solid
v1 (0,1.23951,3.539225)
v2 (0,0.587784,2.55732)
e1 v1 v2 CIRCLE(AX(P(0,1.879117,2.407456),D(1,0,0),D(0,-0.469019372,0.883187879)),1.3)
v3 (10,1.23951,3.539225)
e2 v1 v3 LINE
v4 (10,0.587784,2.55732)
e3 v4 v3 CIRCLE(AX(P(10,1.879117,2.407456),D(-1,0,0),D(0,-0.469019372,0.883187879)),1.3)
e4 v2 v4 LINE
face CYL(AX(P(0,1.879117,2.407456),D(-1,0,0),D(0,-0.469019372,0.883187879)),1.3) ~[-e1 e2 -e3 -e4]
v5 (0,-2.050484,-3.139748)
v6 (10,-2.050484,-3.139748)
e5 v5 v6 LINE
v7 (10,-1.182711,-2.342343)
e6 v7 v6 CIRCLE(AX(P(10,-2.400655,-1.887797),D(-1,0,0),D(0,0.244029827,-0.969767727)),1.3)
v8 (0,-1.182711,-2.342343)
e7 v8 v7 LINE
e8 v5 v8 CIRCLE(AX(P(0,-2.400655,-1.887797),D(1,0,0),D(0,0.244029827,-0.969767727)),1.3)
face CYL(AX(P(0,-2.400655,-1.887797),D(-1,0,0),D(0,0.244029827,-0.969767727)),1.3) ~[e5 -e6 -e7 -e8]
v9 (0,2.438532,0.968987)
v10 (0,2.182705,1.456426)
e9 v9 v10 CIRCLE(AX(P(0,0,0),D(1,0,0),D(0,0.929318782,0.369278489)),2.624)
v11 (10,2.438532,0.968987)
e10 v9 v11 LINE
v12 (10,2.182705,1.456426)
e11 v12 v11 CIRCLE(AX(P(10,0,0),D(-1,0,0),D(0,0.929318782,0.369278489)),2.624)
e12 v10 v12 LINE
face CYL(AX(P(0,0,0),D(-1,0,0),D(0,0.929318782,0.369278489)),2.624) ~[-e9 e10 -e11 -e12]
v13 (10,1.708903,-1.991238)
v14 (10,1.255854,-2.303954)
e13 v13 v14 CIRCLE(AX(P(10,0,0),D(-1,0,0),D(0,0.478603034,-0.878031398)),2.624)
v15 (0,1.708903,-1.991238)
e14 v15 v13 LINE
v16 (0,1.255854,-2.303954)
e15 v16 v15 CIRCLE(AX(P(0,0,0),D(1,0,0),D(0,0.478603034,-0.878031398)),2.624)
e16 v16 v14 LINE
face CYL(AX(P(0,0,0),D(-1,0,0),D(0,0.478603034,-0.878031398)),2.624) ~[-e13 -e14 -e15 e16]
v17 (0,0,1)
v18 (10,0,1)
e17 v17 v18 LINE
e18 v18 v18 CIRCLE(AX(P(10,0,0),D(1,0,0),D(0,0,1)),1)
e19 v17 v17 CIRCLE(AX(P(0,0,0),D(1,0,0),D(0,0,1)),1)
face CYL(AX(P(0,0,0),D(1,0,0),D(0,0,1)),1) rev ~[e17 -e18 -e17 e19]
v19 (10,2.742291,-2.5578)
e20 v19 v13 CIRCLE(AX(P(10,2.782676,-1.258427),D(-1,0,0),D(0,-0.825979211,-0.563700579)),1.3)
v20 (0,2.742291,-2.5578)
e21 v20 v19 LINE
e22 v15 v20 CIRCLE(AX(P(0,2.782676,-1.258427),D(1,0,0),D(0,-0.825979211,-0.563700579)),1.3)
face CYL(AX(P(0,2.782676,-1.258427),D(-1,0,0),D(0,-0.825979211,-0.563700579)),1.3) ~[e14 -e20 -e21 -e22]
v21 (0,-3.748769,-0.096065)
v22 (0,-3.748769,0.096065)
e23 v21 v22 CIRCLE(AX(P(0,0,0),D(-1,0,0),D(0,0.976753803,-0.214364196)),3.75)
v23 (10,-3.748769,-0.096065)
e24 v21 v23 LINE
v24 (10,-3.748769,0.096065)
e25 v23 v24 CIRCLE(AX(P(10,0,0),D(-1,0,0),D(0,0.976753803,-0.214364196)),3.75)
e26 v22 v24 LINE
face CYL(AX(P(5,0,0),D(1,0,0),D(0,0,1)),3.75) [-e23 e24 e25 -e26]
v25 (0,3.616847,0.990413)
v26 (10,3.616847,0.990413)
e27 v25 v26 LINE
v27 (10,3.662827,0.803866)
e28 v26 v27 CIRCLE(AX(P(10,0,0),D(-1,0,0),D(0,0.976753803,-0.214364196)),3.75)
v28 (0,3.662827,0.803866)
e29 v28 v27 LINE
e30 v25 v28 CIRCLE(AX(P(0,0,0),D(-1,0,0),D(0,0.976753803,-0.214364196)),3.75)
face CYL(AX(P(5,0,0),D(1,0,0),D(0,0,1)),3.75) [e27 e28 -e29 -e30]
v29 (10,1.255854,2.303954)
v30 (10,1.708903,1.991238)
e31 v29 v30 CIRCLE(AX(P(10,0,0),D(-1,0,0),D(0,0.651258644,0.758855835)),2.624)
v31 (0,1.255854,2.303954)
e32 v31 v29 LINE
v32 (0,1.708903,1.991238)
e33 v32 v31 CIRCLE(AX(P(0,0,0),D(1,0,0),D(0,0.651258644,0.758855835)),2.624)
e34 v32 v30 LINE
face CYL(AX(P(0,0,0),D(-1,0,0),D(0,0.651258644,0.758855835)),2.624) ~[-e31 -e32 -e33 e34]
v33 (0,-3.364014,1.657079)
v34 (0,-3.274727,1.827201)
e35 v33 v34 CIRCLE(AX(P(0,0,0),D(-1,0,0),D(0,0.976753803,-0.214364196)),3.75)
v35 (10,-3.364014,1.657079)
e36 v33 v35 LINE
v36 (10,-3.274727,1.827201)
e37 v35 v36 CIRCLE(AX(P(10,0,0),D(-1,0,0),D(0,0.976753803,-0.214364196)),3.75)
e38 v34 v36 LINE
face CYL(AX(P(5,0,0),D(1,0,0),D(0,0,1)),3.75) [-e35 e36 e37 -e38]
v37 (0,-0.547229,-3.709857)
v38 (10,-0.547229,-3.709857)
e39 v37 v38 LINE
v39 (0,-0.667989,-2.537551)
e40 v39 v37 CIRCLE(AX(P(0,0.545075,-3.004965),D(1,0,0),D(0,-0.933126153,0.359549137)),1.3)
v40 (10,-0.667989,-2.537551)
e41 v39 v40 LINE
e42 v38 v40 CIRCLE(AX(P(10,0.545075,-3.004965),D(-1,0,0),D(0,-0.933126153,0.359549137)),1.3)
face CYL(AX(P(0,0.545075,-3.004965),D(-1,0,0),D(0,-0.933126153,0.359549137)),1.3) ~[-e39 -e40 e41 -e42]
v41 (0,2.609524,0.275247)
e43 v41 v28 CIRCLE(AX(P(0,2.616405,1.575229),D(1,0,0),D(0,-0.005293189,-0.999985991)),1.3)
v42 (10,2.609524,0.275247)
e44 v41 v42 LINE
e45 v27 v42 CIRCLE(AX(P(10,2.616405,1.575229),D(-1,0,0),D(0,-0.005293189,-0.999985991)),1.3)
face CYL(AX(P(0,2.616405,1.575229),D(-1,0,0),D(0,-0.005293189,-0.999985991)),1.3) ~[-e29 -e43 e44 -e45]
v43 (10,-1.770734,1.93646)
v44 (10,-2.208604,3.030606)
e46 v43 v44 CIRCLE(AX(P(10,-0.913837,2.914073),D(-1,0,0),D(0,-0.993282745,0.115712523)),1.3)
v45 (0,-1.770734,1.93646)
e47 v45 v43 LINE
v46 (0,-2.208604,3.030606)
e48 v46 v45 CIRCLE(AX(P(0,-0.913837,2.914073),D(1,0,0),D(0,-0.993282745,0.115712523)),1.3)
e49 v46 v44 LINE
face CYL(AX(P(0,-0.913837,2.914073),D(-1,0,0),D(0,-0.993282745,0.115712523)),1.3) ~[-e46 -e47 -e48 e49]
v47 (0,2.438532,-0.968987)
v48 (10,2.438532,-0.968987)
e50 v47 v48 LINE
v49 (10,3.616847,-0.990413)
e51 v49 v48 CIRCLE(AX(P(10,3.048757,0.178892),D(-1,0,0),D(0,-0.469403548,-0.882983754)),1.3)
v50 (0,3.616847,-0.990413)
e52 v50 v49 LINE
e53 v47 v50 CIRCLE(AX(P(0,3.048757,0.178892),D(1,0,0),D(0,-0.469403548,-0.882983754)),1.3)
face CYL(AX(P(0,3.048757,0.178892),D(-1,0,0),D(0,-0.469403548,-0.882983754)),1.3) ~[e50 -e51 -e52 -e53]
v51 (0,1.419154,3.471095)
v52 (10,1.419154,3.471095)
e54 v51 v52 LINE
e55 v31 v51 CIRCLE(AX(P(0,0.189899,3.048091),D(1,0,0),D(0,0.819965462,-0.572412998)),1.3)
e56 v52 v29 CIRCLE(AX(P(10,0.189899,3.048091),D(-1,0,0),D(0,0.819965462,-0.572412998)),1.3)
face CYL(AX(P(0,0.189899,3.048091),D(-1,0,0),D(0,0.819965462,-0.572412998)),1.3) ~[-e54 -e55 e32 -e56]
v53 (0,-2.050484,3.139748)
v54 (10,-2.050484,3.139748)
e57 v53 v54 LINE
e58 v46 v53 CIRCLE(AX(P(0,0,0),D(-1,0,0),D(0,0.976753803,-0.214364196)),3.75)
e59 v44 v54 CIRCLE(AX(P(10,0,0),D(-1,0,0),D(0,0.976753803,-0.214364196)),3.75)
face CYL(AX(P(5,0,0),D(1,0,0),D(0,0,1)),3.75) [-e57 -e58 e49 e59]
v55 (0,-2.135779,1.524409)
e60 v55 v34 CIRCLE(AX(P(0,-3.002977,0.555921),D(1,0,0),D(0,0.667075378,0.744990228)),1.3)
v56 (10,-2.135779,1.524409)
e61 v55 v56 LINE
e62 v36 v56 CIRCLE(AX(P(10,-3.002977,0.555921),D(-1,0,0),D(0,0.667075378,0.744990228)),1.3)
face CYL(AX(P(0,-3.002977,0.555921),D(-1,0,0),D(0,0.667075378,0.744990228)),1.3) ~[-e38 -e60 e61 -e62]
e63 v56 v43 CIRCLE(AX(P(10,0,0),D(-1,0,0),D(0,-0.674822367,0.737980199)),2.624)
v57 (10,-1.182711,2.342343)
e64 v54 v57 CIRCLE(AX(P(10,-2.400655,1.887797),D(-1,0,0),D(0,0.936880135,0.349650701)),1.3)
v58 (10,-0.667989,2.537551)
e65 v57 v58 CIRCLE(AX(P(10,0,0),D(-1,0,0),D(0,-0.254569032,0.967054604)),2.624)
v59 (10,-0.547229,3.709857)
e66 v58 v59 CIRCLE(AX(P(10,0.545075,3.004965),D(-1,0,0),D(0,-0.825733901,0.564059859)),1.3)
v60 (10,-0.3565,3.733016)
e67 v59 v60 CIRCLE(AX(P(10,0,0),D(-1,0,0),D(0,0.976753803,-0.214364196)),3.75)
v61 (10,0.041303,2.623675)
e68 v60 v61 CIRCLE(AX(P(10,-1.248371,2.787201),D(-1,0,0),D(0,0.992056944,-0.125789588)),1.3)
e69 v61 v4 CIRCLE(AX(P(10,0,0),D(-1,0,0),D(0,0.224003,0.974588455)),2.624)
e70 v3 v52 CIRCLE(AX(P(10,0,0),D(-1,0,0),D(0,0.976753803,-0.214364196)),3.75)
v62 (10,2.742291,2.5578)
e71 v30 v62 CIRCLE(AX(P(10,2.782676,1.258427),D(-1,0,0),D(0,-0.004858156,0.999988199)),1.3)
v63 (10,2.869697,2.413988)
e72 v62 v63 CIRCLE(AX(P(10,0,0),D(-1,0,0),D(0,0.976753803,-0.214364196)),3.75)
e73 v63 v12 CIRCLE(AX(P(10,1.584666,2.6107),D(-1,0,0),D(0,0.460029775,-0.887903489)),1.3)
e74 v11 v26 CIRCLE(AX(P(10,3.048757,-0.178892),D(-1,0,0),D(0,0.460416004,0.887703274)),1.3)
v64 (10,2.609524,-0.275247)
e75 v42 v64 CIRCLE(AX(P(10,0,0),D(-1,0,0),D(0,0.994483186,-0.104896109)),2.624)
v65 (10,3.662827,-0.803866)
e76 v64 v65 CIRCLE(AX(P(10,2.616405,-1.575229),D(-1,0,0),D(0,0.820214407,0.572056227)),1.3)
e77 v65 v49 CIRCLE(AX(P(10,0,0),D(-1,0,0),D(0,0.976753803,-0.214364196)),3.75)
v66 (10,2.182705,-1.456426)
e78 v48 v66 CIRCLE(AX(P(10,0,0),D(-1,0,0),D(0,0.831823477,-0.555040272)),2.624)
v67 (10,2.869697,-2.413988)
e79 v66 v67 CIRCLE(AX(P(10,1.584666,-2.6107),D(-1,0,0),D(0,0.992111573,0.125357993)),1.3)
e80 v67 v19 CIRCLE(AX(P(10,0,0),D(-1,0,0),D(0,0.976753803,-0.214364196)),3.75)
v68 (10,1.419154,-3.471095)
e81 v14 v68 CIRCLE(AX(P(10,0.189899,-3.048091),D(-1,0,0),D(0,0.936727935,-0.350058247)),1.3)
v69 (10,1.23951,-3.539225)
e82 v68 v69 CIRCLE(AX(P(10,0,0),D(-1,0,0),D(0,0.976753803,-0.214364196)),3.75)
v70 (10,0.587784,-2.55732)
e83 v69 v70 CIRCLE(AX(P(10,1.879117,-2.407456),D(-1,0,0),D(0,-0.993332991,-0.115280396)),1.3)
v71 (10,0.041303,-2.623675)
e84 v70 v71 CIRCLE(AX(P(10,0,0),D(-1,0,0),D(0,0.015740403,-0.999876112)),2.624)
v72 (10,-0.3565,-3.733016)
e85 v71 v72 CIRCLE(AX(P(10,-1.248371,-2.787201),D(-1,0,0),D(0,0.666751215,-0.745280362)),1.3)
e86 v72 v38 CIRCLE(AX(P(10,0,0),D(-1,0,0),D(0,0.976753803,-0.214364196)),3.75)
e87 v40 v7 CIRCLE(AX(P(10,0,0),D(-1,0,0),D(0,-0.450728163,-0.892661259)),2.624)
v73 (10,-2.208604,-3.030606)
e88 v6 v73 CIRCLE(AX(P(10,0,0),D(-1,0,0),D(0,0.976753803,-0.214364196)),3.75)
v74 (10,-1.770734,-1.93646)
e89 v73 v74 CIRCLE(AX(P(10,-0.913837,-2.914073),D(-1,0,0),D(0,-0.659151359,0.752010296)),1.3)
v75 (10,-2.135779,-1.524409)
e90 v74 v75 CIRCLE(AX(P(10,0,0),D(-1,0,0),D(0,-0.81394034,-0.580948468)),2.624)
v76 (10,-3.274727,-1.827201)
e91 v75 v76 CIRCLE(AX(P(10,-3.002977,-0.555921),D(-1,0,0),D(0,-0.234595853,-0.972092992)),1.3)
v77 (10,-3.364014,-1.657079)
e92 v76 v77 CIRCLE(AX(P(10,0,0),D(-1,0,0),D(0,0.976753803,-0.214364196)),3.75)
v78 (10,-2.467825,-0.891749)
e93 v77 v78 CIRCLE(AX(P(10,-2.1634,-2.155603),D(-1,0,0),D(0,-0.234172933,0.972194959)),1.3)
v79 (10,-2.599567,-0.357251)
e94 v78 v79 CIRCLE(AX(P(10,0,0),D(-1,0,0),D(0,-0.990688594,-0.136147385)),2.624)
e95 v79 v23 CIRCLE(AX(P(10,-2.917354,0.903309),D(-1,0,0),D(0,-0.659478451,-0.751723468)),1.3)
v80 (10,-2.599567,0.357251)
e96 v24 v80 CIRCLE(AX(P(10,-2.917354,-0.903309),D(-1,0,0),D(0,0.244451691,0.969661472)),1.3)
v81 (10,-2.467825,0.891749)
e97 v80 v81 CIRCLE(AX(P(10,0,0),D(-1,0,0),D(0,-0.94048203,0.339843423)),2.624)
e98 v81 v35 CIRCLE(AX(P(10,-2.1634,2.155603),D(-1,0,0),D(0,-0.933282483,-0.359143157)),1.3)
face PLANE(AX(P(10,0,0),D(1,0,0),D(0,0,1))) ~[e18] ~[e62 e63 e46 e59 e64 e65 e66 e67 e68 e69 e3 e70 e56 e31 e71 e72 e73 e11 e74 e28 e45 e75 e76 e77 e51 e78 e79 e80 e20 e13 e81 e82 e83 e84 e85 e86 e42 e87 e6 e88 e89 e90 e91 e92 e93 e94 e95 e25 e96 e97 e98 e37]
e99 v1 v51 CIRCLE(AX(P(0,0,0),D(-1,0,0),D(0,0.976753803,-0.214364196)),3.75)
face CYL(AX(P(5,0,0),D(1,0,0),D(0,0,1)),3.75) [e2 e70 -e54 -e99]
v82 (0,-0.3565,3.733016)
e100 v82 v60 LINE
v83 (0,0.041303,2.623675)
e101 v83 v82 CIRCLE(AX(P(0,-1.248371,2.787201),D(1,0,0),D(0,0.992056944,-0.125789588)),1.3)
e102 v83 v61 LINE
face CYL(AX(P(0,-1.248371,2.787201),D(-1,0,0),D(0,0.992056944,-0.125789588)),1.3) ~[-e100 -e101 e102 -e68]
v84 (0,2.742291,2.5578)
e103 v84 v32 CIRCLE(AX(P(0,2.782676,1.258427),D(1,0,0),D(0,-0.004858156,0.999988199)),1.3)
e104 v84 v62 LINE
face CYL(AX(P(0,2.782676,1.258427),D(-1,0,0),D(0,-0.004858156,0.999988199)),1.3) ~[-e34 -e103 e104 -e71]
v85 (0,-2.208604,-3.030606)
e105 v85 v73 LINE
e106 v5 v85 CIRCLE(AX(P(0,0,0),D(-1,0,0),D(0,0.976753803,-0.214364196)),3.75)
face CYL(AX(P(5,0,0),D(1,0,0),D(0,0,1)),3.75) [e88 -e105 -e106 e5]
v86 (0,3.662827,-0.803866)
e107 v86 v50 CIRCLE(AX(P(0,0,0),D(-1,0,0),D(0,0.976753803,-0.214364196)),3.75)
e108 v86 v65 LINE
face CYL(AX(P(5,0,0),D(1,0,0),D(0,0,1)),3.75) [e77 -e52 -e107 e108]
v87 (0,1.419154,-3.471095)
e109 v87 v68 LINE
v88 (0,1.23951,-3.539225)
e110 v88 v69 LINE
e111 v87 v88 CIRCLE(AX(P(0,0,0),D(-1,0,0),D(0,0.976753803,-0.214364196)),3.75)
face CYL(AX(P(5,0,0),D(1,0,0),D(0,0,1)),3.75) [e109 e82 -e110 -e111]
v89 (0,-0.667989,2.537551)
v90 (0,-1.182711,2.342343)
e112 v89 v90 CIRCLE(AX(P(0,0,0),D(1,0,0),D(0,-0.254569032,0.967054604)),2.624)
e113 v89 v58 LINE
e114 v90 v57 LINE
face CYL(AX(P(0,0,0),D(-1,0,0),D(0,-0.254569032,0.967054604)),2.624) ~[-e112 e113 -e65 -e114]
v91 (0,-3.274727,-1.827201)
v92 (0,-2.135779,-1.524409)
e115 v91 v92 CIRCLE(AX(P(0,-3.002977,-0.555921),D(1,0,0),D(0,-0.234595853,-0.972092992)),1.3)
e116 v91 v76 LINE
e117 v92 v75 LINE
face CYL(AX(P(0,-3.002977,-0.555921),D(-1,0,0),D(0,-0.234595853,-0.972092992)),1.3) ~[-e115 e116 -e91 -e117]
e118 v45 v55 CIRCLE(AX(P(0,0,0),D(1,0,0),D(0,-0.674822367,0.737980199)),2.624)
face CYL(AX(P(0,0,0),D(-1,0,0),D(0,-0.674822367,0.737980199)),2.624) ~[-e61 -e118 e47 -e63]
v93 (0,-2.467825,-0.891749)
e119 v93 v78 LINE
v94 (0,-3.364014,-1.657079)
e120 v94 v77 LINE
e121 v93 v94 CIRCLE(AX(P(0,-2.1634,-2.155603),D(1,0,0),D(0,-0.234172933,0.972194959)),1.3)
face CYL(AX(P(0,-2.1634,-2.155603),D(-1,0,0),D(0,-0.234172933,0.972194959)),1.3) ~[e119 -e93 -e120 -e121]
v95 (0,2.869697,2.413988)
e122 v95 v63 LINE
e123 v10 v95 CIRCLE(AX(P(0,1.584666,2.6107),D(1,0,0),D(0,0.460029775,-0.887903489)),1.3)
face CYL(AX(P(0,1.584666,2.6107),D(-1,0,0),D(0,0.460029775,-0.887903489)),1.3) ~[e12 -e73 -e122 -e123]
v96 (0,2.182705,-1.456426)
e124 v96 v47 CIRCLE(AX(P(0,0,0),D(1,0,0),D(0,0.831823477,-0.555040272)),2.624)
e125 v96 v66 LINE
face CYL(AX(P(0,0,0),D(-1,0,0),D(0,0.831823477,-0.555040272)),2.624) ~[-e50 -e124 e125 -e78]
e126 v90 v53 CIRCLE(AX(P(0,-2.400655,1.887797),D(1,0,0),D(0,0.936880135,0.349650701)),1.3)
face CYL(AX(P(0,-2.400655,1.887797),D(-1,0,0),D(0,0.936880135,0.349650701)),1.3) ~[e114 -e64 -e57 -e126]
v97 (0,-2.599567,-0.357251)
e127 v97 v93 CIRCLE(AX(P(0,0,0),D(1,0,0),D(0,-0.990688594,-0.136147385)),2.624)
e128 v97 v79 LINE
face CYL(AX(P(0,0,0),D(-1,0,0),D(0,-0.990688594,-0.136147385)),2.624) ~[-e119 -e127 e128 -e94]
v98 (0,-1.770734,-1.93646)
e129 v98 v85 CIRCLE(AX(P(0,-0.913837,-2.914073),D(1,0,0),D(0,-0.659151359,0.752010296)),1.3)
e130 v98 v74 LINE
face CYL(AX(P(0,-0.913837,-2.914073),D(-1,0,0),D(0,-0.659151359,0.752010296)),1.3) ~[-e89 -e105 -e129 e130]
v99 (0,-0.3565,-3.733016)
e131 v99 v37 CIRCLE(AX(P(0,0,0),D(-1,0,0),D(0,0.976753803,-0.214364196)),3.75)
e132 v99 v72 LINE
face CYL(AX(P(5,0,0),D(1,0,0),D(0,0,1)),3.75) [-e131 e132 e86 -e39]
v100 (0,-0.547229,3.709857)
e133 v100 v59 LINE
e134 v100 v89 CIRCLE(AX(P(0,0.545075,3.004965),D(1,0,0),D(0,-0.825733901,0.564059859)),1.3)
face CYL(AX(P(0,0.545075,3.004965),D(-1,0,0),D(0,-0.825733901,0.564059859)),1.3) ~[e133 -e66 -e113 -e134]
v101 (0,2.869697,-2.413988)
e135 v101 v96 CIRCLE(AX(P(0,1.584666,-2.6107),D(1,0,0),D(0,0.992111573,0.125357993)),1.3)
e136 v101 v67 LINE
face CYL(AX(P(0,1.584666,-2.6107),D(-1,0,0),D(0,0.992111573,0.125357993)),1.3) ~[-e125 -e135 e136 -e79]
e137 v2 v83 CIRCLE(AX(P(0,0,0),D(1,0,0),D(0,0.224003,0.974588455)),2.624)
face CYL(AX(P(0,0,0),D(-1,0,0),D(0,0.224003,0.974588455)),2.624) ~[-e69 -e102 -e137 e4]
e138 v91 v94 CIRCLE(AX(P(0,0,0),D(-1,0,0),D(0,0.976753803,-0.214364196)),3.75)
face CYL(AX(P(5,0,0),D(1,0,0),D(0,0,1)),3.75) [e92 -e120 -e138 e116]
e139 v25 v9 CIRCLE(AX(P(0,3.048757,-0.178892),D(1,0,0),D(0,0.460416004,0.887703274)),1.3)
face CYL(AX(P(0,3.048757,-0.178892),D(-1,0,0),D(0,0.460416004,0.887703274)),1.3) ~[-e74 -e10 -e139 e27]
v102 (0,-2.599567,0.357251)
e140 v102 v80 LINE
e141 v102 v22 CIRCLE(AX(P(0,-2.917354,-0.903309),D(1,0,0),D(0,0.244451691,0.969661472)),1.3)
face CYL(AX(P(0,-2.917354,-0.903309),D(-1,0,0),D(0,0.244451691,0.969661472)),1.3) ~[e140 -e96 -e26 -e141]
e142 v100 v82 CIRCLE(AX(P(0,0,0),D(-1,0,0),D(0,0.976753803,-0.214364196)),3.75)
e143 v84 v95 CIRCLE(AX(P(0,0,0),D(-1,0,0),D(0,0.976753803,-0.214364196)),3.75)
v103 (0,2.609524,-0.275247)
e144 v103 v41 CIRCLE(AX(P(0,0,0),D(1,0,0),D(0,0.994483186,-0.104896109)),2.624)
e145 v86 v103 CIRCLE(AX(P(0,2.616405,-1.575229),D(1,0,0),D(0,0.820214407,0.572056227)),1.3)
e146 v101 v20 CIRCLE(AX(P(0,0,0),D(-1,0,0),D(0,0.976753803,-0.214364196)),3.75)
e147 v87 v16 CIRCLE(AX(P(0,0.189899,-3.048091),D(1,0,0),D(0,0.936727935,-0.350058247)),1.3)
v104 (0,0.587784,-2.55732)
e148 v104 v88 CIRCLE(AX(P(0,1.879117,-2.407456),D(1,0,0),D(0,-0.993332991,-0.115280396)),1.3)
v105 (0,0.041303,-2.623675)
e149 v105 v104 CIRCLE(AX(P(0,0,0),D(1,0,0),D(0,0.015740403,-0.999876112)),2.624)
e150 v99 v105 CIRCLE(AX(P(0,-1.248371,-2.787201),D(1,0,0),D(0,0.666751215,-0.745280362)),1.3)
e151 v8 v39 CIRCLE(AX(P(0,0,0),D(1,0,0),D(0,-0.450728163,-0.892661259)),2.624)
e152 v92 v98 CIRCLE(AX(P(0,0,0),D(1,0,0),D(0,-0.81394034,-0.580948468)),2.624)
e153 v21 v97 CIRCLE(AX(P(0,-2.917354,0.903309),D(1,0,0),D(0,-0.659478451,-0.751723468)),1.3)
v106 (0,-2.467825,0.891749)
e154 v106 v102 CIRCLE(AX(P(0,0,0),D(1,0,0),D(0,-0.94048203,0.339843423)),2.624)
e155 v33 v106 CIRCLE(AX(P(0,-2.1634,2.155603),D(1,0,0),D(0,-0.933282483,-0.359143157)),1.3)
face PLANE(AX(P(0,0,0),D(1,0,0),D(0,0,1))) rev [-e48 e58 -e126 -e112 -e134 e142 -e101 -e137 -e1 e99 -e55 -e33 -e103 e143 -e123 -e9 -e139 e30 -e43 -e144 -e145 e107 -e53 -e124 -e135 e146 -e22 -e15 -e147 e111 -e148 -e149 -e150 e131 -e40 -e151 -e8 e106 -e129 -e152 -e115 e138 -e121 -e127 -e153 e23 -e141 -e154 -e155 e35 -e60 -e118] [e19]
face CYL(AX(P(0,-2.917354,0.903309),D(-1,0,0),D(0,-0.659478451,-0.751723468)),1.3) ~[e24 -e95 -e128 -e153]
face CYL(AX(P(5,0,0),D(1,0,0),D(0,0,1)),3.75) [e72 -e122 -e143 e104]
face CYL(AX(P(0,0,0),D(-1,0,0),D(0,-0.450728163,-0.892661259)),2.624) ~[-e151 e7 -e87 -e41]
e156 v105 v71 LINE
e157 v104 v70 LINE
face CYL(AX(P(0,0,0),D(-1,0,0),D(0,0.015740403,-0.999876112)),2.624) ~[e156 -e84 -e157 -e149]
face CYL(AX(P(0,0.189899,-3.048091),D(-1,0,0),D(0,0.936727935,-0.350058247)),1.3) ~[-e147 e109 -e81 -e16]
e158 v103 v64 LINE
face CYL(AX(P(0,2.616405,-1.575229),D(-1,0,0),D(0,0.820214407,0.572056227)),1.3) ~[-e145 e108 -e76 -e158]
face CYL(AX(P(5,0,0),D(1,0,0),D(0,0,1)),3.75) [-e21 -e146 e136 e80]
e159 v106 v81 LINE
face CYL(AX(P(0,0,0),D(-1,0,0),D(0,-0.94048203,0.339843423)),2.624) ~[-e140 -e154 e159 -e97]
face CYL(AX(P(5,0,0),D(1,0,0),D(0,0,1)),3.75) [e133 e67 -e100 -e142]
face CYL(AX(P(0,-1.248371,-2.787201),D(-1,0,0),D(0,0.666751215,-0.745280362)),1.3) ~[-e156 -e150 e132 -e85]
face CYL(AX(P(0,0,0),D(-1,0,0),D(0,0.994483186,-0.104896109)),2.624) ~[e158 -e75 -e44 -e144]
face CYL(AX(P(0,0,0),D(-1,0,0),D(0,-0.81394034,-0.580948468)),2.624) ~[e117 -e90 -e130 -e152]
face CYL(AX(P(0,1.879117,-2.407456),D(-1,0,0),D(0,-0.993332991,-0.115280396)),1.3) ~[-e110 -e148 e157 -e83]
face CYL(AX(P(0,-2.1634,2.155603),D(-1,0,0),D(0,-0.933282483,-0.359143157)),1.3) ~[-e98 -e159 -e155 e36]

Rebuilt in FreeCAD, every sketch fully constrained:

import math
import FreeCAD as App
import Part
import Sketcher

V = App.Vector
Q = App.Units.Quantity

doc = App.newDocument("Part")
body = doc.addObject("PartDesign::Body", "Body")

# Sketch on XZ plane
sketch1 = body.newObject("Sketcher::SketchObject", "Sketch")
sketch1.AttachmentSupport = (doc.getObject("XZ_Plane"), [""])
sketch1.MapMode = "FlatFace"
sketch1.addGeometry([
    Part.LineSegment(V(0, -3.8, 0), V(0, 0, 0)),
    Part.LineSegment(V(0, 0, 0), V(10, 0, 0)),
    Part.LineSegment(V(10, 0, 0), V(10, -3.8, 0)),
    Part.LineSegment(V(10, -3.8, 0), V(0, -3.8, 0)),
], False)
sketch1.addConstraint([
    Sketcher.Constraint("Coincident", 0, 2, 1, 1),
    Sketcher.Constraint("Coincident", 1, 2, 2, 1),
    Sketcher.Constraint("Coincident", 2, 2, 3, 1),
    Sketcher.Constraint("Coincident", 3, 2, 0, 1),
    Sketcher.Constraint("Vertical", 0),
    Sketcher.Constraint("Horizontal", 1),
    Sketcher.Constraint("Vertical", 2),
    Sketcher.Constraint("Horizontal", 3),
    Sketcher.Constraint("Coincident", 0, 2, -1, 1),
    Sketcher.Constraint("DistanceX", 1, 1, 1, 2, Q("10 mm")),
    Sketcher.Constraint("DistanceY", 0, 1, 0, 2, Q("3.75 mm")),
])
revolution = body.newObject("PartDesign::Revolution", "Revolution")
revolution.Profile = sketch1
revolution.ReferenceAxis = (sketch1, ["H_Axis"])
revolution.Angle = 360

# Sketch on YZ plane
sketch2 = body.newObject("Sketcher::SketchObject", "Sketch001")
sketch2.AttachmentSupport = (doc.getObject("YZ_Plane"), [""])
sketch2.MapMode = "FlatFace"
sketch2.addGeometry([
    Part.ArcOfCircle(Part.Circle(V(0, 0, 0), V(0, 0, 1), 2.6), math.radians(-6.02), math.radians(6.02)),
    Part.ArcOfCircle(Part.Circle(V(2.6, -1.6, 0), V(0, 0, 1), 1.3), math.radians(35), math.radians(90)),
    Part.ArcOfCircle(Part.Circle(V(0, 0, 0), V(0, 0, 1), 3.8), math.radians(-13), math.radians(13)),
    Part.ArcOfCircle(Part.Circle(V(2.6, 1.6, 0), V(0, 0, 1), 1.3), math.radians(-90), math.radians(-35)),
], False)
sketch2.addConstraint([
    Sketcher.Constraint("Coincident", 0, 1, 1, 2),
    Sketcher.Constraint("Coincident", 1, 1, 2, 1),
    Sketcher.Constraint("Coincident", 2, 2, 3, 2),
    Sketcher.Constraint("Coincident", 3, 1, 0, 2),
    Sketcher.Constraint("Coincident", 0, 3, -1, 1),
    Sketcher.Constraint("Coincident", 2, 3, -1, 1),
    Sketcher.Constraint("Equal", 1, 3),
    Sketcher.Constraint("Symmetric", 1, 3, 3, 3, -1),
    Sketcher.Constraint("Radius", 1, Q("1.3 mm")),
    Sketcher.Constraint("Radius", 0, Q("2.624 mm")),
    Sketcher.Constraint("Radius", 2, Q("3.7754 mm")),
    Sketcher.Constraint("DistanceY", 1, 3, -1, 1, Q("1.575229 mm")),
    Sketcher.Constraint("DistanceX", 0, 1, 1, 3, Q("0.006881 mm")),
])
pocket1 = body.newObject("PartDesign::Pocket", "Pocket")
pocket1.Profile = sketch2
pocket1.Type = "ThroughAll"
pocket1.Reversed = True
doc.recompute()

polarpattern = body.newObject("PartDesign::PolarPattern", "PolarPattern")
polarpattern.Originals = [pocket1]
polarpattern.Axis = (doc.getObject("X_Axis"), [""])
polarpattern.Angle = 360
polarpattern.Occurrences = 13
body.Tip = polarpattern

# Sketch on YZ plane
sketch3 = body.newObject("Sketcher::SketchObject", "Sketch002")
sketch3.AttachmentSupport = (doc.getObject("YZ_Plane"), [""])
sketch3.MapMode = "FlatFace"
sketch3.addGeometry(Part.Circle(V(0, 0, 0), V(0, 0, 1), 1), False)
sketch3.addConstraint([
    Sketcher.Constraint("Coincident", 0, 3, -1, 1),
    Sketcher.Constraint("Diameter", 0, Q("2 mm")),
])
pocket2 = body.newObject("PartDesign::Pocket", "Pocket001")
pocket2.Profile = sketch3
pocket2.Length = 100.000102
pocket2.Midplane = True

doc.recompute()
